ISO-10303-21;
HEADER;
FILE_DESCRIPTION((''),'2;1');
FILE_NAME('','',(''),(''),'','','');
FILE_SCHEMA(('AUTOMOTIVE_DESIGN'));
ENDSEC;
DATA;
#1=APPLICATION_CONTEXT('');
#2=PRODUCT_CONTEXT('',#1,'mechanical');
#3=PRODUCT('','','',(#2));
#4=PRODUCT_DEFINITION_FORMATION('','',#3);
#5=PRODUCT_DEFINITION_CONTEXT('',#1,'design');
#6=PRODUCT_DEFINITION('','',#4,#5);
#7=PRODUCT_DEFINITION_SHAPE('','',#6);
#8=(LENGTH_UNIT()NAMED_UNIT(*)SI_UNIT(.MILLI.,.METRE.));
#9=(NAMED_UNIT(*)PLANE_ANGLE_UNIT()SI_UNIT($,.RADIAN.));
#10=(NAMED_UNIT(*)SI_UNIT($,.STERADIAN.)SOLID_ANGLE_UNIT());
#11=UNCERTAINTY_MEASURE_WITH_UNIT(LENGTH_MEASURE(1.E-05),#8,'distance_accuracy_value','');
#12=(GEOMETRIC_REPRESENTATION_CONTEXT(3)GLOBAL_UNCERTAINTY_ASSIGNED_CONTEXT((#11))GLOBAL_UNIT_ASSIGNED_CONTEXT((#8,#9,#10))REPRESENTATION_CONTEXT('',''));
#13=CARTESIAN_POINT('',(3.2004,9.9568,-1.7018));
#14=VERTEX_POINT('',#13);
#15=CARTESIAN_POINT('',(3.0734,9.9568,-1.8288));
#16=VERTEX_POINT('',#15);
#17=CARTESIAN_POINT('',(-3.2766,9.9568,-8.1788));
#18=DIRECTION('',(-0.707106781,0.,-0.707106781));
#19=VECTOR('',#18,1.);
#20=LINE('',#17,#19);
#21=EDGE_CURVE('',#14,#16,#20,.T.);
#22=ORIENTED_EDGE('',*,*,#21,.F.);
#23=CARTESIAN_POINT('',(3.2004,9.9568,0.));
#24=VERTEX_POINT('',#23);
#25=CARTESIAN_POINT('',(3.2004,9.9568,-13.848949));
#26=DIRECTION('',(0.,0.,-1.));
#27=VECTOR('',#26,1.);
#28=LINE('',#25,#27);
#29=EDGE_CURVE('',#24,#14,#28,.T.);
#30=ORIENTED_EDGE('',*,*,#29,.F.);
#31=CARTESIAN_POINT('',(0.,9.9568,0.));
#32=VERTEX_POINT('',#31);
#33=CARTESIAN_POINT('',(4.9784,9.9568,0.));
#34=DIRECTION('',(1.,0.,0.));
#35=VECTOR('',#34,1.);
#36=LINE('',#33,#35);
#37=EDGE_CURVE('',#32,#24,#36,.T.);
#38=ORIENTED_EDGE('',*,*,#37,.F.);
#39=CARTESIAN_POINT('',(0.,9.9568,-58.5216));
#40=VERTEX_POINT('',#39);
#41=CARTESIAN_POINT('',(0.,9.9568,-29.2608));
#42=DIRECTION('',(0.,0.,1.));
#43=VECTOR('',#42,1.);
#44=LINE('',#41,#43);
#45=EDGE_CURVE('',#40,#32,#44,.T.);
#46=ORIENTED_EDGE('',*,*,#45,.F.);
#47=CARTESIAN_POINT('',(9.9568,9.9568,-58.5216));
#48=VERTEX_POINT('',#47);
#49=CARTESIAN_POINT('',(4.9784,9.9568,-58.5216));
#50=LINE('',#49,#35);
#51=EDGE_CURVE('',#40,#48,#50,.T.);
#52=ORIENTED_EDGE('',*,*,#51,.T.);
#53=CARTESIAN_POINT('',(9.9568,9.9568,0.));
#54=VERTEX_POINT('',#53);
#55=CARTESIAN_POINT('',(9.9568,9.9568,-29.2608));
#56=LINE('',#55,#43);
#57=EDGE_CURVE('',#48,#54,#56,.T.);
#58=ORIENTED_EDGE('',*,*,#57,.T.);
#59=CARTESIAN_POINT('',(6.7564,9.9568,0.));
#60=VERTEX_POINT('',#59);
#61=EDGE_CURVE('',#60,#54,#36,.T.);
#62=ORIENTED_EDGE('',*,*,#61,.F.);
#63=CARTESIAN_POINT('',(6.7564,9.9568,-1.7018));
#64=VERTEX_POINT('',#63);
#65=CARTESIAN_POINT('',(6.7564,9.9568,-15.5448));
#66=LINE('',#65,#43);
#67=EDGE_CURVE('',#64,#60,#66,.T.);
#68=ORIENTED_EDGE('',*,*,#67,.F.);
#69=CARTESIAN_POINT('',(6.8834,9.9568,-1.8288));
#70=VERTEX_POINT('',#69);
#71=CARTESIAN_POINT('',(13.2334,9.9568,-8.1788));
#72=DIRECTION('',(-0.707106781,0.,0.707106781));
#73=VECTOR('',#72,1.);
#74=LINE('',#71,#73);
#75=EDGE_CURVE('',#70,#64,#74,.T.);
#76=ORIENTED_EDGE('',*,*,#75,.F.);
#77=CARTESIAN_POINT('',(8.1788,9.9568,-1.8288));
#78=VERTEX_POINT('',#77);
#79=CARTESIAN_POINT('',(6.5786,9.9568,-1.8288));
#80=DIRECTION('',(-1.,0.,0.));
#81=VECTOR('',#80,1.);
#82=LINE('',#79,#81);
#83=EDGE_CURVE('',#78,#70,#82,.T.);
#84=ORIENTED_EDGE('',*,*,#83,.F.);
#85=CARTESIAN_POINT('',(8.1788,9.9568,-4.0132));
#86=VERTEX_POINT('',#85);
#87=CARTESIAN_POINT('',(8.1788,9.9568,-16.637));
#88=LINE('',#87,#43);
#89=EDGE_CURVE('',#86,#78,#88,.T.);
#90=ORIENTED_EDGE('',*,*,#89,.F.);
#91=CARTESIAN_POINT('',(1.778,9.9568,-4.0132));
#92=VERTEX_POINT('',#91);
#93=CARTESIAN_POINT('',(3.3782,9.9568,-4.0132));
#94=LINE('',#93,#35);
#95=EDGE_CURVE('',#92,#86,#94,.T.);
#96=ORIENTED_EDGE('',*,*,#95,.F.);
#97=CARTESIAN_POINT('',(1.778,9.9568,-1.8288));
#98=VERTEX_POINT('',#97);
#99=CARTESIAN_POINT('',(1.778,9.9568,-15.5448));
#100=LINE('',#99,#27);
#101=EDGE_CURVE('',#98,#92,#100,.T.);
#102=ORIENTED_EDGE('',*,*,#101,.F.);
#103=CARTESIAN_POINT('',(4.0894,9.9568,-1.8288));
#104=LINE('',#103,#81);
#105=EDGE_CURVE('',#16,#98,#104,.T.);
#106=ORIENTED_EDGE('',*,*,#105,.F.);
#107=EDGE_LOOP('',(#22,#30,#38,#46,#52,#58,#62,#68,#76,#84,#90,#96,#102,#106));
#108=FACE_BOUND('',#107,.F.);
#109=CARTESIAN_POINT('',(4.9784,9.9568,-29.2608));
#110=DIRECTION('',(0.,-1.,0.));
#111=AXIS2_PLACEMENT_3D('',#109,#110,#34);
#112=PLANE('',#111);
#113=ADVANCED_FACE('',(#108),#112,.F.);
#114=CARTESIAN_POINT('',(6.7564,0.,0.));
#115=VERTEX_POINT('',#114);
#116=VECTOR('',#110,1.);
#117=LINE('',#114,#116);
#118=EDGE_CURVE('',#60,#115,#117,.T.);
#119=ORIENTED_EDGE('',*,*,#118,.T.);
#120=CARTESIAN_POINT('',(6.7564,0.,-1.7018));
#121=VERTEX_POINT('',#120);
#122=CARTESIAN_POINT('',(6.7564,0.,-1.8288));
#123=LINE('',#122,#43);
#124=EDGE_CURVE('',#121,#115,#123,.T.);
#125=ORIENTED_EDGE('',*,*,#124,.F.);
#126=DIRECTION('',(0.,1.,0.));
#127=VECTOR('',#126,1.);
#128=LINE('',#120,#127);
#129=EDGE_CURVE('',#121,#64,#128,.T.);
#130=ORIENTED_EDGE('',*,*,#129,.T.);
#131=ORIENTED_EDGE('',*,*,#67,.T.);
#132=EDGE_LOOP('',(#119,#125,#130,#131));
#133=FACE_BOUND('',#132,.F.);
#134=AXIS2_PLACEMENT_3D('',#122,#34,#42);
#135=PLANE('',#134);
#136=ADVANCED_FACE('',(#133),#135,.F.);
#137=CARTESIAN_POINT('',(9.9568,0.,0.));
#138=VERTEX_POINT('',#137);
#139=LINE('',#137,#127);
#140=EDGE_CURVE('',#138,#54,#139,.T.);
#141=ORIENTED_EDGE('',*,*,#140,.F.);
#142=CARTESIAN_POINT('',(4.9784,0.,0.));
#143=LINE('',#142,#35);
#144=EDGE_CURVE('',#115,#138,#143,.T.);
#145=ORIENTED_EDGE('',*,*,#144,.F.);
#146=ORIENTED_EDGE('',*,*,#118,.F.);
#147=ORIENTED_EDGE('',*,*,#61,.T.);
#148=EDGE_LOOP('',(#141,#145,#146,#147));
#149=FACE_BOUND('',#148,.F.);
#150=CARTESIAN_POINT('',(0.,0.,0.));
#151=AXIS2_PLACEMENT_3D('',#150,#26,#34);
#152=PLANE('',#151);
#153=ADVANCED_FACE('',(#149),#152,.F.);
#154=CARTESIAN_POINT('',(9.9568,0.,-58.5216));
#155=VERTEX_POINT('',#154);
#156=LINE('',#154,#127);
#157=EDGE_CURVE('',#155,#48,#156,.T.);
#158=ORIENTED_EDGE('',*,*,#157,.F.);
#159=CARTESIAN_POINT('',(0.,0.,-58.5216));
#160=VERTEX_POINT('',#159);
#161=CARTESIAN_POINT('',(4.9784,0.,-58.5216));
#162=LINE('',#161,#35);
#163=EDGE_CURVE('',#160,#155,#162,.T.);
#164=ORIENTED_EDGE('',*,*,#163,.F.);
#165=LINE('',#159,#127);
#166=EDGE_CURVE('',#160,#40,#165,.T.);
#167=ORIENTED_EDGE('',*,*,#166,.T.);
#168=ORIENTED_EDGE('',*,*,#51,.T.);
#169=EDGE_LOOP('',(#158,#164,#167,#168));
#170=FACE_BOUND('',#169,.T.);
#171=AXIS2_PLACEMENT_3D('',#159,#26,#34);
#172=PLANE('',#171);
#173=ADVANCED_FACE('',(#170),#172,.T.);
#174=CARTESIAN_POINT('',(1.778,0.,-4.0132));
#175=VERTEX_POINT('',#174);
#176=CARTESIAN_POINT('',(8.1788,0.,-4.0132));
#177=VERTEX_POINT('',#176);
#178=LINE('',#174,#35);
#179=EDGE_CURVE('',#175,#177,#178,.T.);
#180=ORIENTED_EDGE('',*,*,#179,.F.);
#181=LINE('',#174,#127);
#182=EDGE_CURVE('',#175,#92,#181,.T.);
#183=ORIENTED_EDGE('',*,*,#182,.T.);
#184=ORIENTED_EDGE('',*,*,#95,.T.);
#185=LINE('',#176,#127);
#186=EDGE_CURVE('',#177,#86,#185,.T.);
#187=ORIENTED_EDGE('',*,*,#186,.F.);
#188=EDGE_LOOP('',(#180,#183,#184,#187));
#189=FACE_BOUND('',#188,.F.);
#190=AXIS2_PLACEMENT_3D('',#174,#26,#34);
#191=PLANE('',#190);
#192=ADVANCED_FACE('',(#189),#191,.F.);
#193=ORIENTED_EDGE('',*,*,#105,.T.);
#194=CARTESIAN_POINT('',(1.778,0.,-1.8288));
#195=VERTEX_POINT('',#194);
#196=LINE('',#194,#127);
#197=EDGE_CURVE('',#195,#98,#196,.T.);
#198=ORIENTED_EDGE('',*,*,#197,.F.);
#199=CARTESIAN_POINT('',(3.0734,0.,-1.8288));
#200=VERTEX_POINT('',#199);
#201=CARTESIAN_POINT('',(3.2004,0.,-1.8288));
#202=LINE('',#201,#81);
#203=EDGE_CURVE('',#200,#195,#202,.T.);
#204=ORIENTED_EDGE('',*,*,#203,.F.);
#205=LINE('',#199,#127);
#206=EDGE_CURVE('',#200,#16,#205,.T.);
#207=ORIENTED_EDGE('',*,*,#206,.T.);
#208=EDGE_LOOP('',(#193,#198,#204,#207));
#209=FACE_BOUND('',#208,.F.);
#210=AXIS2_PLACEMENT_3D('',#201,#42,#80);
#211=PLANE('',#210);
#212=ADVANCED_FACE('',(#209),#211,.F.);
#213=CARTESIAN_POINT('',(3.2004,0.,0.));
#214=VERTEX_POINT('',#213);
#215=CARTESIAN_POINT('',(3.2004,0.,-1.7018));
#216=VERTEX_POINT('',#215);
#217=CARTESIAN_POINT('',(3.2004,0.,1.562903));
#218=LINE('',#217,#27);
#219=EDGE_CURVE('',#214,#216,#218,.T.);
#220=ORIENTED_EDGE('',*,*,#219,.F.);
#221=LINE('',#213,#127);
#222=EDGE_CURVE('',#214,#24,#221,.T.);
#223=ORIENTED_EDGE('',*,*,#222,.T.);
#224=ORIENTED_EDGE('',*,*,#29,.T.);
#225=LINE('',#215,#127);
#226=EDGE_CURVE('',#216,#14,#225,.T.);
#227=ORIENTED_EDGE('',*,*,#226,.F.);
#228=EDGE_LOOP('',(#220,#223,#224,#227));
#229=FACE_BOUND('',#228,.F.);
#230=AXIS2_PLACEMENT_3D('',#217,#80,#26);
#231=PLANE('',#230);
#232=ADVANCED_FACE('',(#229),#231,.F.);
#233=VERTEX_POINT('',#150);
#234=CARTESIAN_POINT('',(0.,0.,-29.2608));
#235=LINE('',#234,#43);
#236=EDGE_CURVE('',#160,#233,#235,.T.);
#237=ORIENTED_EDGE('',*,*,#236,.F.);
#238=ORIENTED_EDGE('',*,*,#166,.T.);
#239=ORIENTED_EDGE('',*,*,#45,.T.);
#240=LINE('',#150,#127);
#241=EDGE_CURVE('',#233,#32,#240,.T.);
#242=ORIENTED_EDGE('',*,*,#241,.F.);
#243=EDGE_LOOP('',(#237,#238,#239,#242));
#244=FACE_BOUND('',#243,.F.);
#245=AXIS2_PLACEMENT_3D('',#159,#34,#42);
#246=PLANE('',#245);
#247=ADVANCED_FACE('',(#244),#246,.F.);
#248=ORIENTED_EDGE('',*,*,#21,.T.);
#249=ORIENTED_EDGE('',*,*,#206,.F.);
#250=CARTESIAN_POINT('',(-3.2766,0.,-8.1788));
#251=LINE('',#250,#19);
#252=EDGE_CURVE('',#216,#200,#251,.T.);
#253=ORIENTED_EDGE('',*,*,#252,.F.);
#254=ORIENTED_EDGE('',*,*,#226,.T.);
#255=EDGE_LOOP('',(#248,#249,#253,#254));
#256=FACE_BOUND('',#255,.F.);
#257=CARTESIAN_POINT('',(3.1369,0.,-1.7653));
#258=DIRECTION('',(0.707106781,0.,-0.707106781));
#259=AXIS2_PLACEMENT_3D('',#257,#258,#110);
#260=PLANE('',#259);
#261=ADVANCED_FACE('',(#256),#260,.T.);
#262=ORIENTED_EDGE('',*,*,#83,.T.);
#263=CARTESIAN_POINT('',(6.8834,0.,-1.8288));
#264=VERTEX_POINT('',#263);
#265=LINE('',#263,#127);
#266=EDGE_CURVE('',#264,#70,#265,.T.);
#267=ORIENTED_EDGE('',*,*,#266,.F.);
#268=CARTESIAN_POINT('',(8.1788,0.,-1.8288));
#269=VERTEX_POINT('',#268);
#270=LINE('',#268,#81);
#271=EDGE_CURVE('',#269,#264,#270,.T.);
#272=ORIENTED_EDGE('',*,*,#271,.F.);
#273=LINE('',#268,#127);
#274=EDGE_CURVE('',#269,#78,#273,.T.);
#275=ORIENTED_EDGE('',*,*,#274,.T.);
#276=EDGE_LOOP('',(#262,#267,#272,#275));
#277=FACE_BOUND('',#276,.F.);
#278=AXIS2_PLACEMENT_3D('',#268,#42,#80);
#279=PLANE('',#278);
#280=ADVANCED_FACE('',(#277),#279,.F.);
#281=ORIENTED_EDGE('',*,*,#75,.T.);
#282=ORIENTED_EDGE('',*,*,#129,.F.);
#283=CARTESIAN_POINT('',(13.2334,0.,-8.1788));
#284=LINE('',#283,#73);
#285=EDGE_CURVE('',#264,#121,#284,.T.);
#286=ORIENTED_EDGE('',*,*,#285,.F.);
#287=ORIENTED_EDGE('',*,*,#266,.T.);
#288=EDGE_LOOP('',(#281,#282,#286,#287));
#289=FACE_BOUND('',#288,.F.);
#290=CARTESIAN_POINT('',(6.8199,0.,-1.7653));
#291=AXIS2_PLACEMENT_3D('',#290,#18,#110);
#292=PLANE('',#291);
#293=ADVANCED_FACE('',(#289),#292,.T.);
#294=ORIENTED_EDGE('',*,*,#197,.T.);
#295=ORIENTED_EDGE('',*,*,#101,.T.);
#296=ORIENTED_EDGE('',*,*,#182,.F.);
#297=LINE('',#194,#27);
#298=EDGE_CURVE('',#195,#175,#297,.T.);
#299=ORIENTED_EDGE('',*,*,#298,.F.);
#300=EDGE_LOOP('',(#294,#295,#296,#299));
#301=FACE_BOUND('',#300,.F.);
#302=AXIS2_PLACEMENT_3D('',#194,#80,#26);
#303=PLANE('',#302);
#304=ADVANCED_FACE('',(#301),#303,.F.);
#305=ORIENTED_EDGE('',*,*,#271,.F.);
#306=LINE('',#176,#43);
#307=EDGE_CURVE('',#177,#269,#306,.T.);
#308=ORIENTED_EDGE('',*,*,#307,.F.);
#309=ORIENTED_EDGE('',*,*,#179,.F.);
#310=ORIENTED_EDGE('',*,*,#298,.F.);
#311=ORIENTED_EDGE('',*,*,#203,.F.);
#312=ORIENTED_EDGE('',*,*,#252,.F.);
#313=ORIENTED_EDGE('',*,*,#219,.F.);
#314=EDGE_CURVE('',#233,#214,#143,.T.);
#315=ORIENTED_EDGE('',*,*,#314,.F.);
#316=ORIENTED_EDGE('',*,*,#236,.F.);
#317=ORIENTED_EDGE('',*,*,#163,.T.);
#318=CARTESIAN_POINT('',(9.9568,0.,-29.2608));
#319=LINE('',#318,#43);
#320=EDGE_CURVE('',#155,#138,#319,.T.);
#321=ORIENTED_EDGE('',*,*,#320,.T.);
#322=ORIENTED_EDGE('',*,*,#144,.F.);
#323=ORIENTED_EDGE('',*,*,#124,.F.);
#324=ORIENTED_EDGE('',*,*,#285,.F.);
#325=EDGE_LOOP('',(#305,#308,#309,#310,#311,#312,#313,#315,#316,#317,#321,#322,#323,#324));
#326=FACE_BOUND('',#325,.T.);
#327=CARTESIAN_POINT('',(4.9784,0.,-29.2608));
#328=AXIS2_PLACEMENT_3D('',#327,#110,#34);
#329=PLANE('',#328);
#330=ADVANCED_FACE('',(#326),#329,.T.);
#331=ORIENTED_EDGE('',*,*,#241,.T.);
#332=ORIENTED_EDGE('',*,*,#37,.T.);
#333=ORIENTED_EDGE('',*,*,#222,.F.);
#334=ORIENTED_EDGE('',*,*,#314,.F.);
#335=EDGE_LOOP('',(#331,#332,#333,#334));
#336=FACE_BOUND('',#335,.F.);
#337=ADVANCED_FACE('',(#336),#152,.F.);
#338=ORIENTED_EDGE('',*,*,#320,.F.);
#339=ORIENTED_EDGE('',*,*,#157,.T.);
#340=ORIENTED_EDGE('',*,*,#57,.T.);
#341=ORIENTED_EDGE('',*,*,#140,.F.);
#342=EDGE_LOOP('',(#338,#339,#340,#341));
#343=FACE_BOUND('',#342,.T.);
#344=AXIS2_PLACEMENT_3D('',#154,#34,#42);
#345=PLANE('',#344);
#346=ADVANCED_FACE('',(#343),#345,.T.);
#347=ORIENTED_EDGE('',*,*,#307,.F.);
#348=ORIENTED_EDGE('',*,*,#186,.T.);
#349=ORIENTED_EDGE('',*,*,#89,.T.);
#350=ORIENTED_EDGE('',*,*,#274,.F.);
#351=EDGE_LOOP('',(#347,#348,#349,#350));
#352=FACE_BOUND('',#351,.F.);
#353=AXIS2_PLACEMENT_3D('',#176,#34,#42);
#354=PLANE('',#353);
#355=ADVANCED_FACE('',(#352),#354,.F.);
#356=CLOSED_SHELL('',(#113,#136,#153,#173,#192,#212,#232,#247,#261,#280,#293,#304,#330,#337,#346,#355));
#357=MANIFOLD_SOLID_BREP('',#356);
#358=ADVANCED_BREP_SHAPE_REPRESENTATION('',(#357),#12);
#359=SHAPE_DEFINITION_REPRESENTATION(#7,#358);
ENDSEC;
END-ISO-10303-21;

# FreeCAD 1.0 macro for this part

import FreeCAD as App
import Part
import Sketcher

V = App.Vector
Q = App.Units.Quantity


def edges_at(feature, points):
    """Names of the edges that pass closest to the given points."""
    edges = feature.Shape.Edges
    near = lambda p: min(range(len(edges)), key=lambda i: edges[i].distToShape(Part.Vertex(*p))[0])
    return sorted({f"Edge{near(p) + 1}" for p in points})

doc = App.newDocument("Part")
body = doc.addObject("PartDesign::Body", "Body")

sketch1 = body.newObject("Sketcher::SketchObject", "Sketch")
sketch1.AttachmentSupport = (doc.getObject("XZ_Plane"), [""])
sketch1.MapMode = "FlatFace"
sketch1.addGeometry([
    Part.LineSegment(V(0, 0, 0), V(0, -58.5216, 0)),
    Part.LineSegment(V(0, -58.5216, 0), V(9.9568, -58.5216, 0)),
    Part.LineSegment(V(9.9568, -58.5216, 0), V(9.9568, 0, 0)),
    Part.LineSegment(V(9.9568, 0, 0), V(0, 0, 0)),
], False)
sketch1.addConstraint([
    Sketcher.Constraint("Coincident", 0, 2, 1, 1),
    Sketcher.Constraint("Coincident", 1, 2, 2, 1),
    Sketcher.Constraint("Coincident", 2, 2, 3, 1),
    Sketcher.Constraint("Coincident", 3, 2, 0, 1),
    Sketcher.Constraint("Vertical", 0),
    Sketcher.Constraint("Horizontal", 1),
    Sketcher.Constraint("Vertical", 2),
    Sketcher.Constraint("Horizontal", 3),
    Sketcher.Constraint("Coincident", 3, 2, -1, 1),
    Sketcher.Constraint("DistanceX", 1, 1, 1, 2, Q("0.392 in")),
    Sketcher.Constraint("DistanceY", 0, 2, 0, 1, Q("2.304 in")),
])
pad1 = body.newObject("PartDesign::Pad", "Pad")
pad1.Profile = sketch1
pad1.Length = Q("0.392 in")
pad1.Reversed = True

sketch2 = body.newObject("Sketcher::SketchObject", "Sketch001")
sketch2.AttachmentSupport = (doc.getObject("XZ_Plane"), [""])
sketch2.MapMode = "FlatFace"
sketch2.addGeometry([
    Part.LineSegment(V(6.7564, 1.562734, 0), V(3.2004, 1.562903, 0)),
    Part.LineSegment(V(3.2004, 1.562903, 0), V(3.2004, -1.8288, 0)),
    Part.LineSegment(V(3.2004, -1.8288, 0), V(1.778, -1.8288, 0)),
    Part.LineSegment(V(1.778, -1.8288, 0), V(1.778, -4.0132, 0)),
    Part.LineSegment(V(1.778, -4.0132, 0), V(8.1788, -4.0132, 0)),
    Part.LineSegment(V(8.1788, -4.0132, 0), V(8.1788, -1.8288, 0)),
    Part.LineSegment(V(8.1788, -1.8288, 0), V(6.7564, -1.8288, 0)),
    Part.LineSegment(V(6.7564, -1.8288, 0), V(6.7564, 1.562734, 0)),
], False)
sketch2.addConstraint([
    Sketcher.Constraint("Coincident", 0, 2, 1, 1),
    Sketcher.Constraint("Coincident", 1, 2, 2, 1),
    Sketcher.Constraint("Coincident", 2, 2, 3, 1),
    Sketcher.Constraint("Coincident", 3, 2, 4, 1),
    Sketcher.Constraint("Coincident", 4, 2, 5, 1),
    Sketcher.Constraint("Coincident", 5, 2, 6, 1),
    Sketcher.Constraint("Coincident", 6, 2, 7, 1),
    Sketcher.Constraint("Coincident", 7, 2, 0, 1),
    Sketcher.Constraint("Vertical", 1),
    Sketcher.Constraint("Horizontal", 2),
    Sketcher.Constraint("Vertical", 3),
    Sketcher.Constraint("Horizontal", 4),
    Sketcher.Constraint("Vertical", 5),
    Sketcher.Constraint("Horizontal", 6),
    Sketcher.Constraint("Vertical", 7),
    Sketcher.Constraint("Horizontal", 2, 2, 5, 2),
    Sketcher.Constraint("Equal", 2, 6),
    Sketcher.Constraint("Distance", 0, Q("0.14 in")),
    Sketcher.Constraint("DistanceX", 2, 2, 2, 1, Q("0.056 in")),
    Sketcher.Constraint("DistanceY", 3, 2, 3, 1, Q("0.086 in")),
    Sketcher.Constraint("DistanceX", -1, 1, 2, 2, Q("0.07 in")),
    Sketcher.Constraint("DistanceY", 1, 2, -1, 1, Q("0.072 in")),
    Sketcher.Constraint("DistanceY", 1, 2, 1, 1, Q("3.391703 mm")),
    Sketcher.Constraint("DistanceY", 7, 1, 7, 2, Q("3.391534 mm")),
])
pocket1 = body.newObject("PartDesign::Pocket", "Pocket")
pocket1.Profile = sketch2
pocket1.Type = "ThroughAll"
doc.recompute()

chamfer = body.newObject("PartDesign::Chamfer", "Chamfer")
chamfer.Base = (pocket1, edges_at(pocket1, [(3.2, 4.978, -1.829), (6.756, 4.978, -1.829)]))
chamfer.Size = Q("0.005 in")

doc.recompute()
